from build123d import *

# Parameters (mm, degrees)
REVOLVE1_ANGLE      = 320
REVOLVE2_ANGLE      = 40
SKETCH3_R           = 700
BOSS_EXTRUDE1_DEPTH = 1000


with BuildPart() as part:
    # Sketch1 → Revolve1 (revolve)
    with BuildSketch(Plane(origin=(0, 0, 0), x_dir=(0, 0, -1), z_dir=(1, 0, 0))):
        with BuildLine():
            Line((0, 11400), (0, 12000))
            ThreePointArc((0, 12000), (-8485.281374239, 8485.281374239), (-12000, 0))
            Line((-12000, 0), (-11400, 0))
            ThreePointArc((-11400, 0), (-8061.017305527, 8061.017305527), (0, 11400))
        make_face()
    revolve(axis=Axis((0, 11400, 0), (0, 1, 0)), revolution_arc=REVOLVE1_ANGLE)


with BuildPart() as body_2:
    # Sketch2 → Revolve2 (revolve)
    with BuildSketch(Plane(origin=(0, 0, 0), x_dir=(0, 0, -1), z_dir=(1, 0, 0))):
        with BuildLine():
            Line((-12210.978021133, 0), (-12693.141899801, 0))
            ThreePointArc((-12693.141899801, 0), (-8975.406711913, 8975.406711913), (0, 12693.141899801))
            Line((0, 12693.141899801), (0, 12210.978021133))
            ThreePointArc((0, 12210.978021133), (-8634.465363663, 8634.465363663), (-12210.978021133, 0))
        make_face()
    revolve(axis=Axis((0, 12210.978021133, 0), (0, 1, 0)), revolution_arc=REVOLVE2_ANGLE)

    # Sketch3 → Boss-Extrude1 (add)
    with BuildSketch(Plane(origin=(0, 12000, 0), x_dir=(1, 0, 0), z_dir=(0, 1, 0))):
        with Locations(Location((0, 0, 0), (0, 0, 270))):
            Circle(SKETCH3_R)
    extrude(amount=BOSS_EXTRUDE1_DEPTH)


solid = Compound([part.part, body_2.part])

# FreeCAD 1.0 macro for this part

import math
import FreeCAD as App
import Part
import Sketcher
from FreeCAD import Vector

doc = App.newDocument("Part")
params = doc.addObject("Spreadsheet::Sheet", "Params")
for row, (alias, value) in enumerate([
    ("sketch1_radius", "12000 mm"),
    ("sketch1_radius2", "11400 mm"),
    ("revolution_angle", "320 deg"),
    ("revolution2_angle", "40 deg"),
    ("sketch3_diameter", "1400 mm"),
    ("pad1_length", "1000 mm"),
], start=1):
    params.set(f"A{row}", alias)
    params.set(f"B{row}", "=" + value)
    params.setAlias(f"B{row}", alias)

body = doc.addObject("PartDesign::Body", "Body")

sketch1 = body.newObject("Sketcher::SketchObject", "Sketch")
sketch1.AttachmentSupport = (doc.getObject("YZ_Plane"), [""])
sketch1.MapMode = "FlatFace"
sketch1.addGeometry(Part.LineSegment(Vector(11400, 0, 0), Vector(12000, 0, 0)), False)
sketch1.addGeometry(Part.ArcOfCircle(Part.Circle(Vector(0, 0, 0), Vector(0, 0, 1), 12000), math.radians(0), math.radians(90)), False)
sketch1.addGeometry(Part.LineSegment(Vector(0, 12000, 0), Vector(0, 11400, 0)), False)
sketch1.addGeometry(Part.ArcOfCircle(Part.Circle(Vector(0, 0, 0), Vector(0, 0, 1), 11400), math.radians(0), math.radians(90)), False)
sketch1.addConstraint(Sketcher.Constraint("Coincident", 0, 2, 1, 1))
sketch1.addConstraint(Sketcher.Constraint("Coincident", 1, 2, 2, 1))
sketch1.addConstraint(Sketcher.Constraint("Coincident", 2, 2, 3, 2))
sketch1.addConstraint(Sketcher.Constraint("Coincident", 3, 1, 0, 1))
sketch1.addConstraint(Sketcher.Constraint("Horizontal", 0))
sketch1.addConstraint(Sketcher.Constraint("Vertical", 2))
sketch1.addConstraint(Sketcher.Constraint("Coincident", 1, 3, -1, 1))
sketch1.addConstraint(Sketcher.Constraint("Coincident", 3, 3, -1, 1))
sketch1.addConstraint(Sketcher.Constraint("PointOnObject", 0, 2, -1))
sketch1.addConstraint(Sketcher.Constraint("PointOnObject", 2, 2, -2))
sketch1.addConstraint(Sketcher.Constraint("Radius", 1, 12000.0))
sketch1.addConstraint(Sketcher.Constraint("Radius", 3, 11400.0))
sketch1.setExpression("Constraints[10]", "Params.sketch1_radius")
sketch1.setExpression("Constraints[11]", "Params.sketch1_radius2")
revolution = body.newObject("PartDesign::Revolution", "Revolution")
revolution.Profile = sketch1
revolution.ReferenceAxis = (sketch1, ["H_Axis"])
revolution.setExpression("Angle", "Params.revolution_angle")
body2 = doc.addObject("PartDesign::Body", "Body001")

sketch2 = body2.newObject("Sketcher::SketchObject", "Sketch001")
sketch2.AttachmentSupport = (doc.getObject("YZ_Plane001"), [""])
sketch2.MapMode = "FlatFace"
sketch2.addGeometry(Part.LineSegment(Vector(0, 12693.1419, 0), Vector(0, 12210.978021, 0)), False)
sketch2.addGeometry(Part.ArcOfCircle(Part.Circle(Vector(0, 0, 0), Vector(0, 0, 1), 12210.978021), math.radians(0), math.radians(90)), False)
sketch2.addGeometry(Part.LineSegment(Vector(12210.978021, 0, 0), Vector(12693.1419, 0, 0)), False)
sketch2.addGeometry(Part.ArcOfCircle(Part.Circle(Vector(0, 0, 0), Vector(0, 0, 1), 12693.1419), math.radians(0), math.radians(90)), False)
sketch2.addConstraint(Sketcher.Constraint("Coincident", 0, 2, 1, 2))
sketch2.addConstraint(Sketcher.Constraint("Coincident", 1, 1, 2, 1))
sketch2.addConstraint(Sketcher.Constraint("Coincident", 2, 2, 3, 1))
sketch2.addConstraint(Sketcher.Constraint("Coincident", 3, 2, 0, 1))
sketch2.addConstraint(Sketcher.Constraint("Vertical", 0))
sketch2.addConstraint(Sketcher.Constraint("Horizontal", 2))
sketch2.addConstraint(Sketcher.Constraint("Coincident", 1, 3, -1, 1))
sketch2.addConstraint(Sketcher.Constraint("Coincident", 3, 3, -1, 1))
sketch2.addConstraint(Sketcher.Constraint("PointOnObject", 0, 2, -2))
sketch2.addConstraint(Sketcher.Constraint("PointOnObject", 2, 2, -1))
sketch2.addConstraint(Sketcher.Constraint("Radius", 3, 12693.1419))
sketch2.addConstraint(Sketcher.Constraint("Radius", 1, 12210.978021))
revolution2 = body2.newObject("PartDesign::Revolution", "Revolution001")
revolution2.Profile = sketch2
revolution2.ReferenceAxis = (sketch2, ["H_Axis"])
revolution2.setExpression("Angle", "Params.revolution2_angle")

sketch3 = body2.newObject("Sketcher::SketchObject", "Sketch002")
sketch3.AttachmentSupport = (doc.getObject("XZ_Plane001"), [""])
sketch3.MapMode = "FlatFace"
sketch3.AttachmentOffset = App.Placement(Vector(0, 0, -12000), App.Rotation())
sketch3.addGeometry(Part.Circle(Vector(0, 0, 0), Vector(0, 0, 1), 700), False)
sketch3.addConstraint(Sketcher.Constraint("Coincident", 0, 3, -1, 1))
sketch3.addConstraint(Sketcher.Constraint("Diameter", 0, 1400.0))
sketch3.setExpression("Constraints[1]", "Params.sketch3_diameter")
pad1 = body2.newObject("PartDesign::Pad", "Pad")
pad1.Profile = sketch3
pad1.setExpression("Length", "Params.pad1_length")
pad1.Reversed = True

doc.recompute()
